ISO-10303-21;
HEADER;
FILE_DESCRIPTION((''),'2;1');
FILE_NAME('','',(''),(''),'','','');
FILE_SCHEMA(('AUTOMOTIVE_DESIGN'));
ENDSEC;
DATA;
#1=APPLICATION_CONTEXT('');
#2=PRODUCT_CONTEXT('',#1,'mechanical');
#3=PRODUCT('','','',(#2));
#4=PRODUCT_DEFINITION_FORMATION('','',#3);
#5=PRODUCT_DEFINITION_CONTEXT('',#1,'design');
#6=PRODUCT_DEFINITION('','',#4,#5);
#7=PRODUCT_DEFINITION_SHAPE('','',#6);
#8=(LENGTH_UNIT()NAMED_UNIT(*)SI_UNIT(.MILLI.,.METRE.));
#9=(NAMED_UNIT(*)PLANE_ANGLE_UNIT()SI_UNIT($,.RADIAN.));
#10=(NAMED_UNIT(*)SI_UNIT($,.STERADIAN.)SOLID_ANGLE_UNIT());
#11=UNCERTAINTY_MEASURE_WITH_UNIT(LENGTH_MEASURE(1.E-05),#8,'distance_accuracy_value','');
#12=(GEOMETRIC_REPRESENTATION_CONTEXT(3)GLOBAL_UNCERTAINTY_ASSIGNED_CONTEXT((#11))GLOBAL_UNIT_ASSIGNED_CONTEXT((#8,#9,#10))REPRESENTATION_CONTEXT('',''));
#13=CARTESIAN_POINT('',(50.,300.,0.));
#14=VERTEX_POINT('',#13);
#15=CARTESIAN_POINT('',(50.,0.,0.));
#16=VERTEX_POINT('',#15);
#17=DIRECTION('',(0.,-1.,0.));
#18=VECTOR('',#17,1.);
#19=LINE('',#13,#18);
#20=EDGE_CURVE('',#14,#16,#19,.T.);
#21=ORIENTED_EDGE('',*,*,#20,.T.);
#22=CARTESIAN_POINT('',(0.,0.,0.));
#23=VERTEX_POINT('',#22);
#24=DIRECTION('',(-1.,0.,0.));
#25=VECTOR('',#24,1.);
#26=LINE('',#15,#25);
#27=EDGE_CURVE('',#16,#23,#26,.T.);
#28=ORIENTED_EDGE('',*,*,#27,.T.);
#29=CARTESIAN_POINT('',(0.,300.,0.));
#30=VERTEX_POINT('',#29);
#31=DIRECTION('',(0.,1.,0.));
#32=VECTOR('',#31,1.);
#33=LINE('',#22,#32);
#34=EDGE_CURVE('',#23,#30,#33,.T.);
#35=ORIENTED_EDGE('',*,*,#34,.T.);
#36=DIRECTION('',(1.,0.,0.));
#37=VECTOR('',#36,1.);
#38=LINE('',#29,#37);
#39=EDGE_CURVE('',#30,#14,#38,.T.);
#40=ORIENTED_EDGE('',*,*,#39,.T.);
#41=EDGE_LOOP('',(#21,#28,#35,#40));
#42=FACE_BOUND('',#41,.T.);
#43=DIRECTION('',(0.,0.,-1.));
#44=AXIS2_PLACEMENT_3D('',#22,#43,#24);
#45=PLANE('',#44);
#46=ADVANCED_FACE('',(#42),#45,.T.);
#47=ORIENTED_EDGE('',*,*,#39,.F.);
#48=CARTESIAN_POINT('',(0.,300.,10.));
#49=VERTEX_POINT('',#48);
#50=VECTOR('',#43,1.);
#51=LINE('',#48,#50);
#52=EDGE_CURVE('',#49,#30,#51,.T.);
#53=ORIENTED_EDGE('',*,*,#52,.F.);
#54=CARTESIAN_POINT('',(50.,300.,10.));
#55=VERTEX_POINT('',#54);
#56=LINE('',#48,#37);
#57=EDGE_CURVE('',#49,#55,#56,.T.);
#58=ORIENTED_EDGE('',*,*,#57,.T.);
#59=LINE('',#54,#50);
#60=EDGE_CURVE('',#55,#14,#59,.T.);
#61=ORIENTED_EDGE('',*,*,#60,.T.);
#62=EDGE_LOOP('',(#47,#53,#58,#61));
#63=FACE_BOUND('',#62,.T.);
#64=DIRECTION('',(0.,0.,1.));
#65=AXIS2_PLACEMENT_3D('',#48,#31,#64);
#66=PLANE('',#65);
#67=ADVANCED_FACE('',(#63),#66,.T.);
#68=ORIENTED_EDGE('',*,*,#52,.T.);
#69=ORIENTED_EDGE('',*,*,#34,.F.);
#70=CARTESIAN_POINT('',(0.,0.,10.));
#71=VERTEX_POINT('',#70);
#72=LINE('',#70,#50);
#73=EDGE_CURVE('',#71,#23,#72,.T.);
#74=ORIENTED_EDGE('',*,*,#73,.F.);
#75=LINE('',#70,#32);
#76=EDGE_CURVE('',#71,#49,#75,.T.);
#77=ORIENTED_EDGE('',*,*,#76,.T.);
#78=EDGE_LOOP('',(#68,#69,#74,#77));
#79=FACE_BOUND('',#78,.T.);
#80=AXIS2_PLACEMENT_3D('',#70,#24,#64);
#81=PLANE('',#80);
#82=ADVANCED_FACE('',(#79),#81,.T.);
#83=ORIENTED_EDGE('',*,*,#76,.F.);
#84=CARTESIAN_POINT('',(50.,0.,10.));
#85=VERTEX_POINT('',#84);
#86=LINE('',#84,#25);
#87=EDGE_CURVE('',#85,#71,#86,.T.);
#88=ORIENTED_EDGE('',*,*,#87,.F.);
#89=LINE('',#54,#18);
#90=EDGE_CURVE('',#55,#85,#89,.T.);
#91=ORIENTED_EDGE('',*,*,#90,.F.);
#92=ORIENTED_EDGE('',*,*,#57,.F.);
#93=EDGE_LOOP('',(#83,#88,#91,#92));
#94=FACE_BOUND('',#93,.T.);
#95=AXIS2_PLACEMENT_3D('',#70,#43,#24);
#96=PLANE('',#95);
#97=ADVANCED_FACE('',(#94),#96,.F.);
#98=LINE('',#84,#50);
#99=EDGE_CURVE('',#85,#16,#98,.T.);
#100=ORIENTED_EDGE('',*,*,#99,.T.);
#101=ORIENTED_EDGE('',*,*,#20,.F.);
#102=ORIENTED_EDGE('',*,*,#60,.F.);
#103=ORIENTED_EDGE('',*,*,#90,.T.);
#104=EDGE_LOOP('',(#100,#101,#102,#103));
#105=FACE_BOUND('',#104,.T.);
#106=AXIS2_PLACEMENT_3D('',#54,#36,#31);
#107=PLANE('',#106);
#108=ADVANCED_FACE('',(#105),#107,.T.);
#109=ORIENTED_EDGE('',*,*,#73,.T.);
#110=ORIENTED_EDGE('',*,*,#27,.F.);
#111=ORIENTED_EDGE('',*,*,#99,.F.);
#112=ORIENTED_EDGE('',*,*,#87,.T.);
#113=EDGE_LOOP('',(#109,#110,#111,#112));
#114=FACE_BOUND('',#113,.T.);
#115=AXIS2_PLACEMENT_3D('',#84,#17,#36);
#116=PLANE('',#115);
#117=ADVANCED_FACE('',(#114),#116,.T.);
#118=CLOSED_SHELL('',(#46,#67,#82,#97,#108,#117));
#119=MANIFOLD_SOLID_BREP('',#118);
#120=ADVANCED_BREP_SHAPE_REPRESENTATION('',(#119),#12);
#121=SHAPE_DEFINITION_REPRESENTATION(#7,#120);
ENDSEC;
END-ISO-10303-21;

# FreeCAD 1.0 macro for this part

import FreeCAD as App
import Part
import Sketcher

V = App.Vector

doc = App.newDocument("Part")
body = doc.addObject("PartDesign::Body", "Body")

# Sketch on XY plane
sketch1 = doc.addObject("Sketcher::SketchObject", "Sketch")
body.addObject(sketch1)
sketch1.AttachmentSupport = (doc.XY_Plane, [""])
sketch1.MapMode = "FlatFace"
sketch1.addGeometry(Part.LineSegment(V(0, 300, 0), V(0, 0, 0)), False)
sketch1.addGeometry(Part.LineSegment(V(0, 0, 0), V(50, 0, 0)), False)
sketch1.addGeometry(Part.LineSegment(V(50, 0, 0), V(50, 300, 0)), False)
sketch1.addGeometry(Part.LineSegment(V(50, 300, 0), V(0, 300, 0)), False)
sketch1.addConstraint(Sketcher.Constraint("Coincident", 0, 2, 1, 1))
sketch1.addConstraint(Sketcher.Constraint("Coincident", 1, 2, 2, 1))
sketch1.addConstraint(Sketcher.Constraint("Coincident", 2, 2, 3, 1))
sketch1.addConstraint(Sketcher.Constraint("Coincident", 3, 2, 0, 1))
sketch1.addConstraint(Sketcher.Constraint("Vertical", 0))
sketch1.addConstraint(Sketcher.Constraint("Horizontal", 1))
sketch1.addConstraint(Sketcher.Constraint("Vertical", 2))
sketch1.addConstraint(Sketcher.Constraint("Horizontal", 3))
sketch1.addConstraint(Sketcher.Constraint("Coincident", 0, 2, -1, 1))
sketch1.addConstraint(Sketcher.Constraint("DistanceX", 1, 1, 1, 2, 50.0))
sketch1.addConstraint(Sketcher.Constraint("DistanceY", 0, 2, 0, 1, 300.0))
pad1 = doc.addObject("PartDesign::Pad", "Pad")
body.addObject(pad1)
pad1.Profile = sketch1
pad1.Length = 10

doc.recompute()
